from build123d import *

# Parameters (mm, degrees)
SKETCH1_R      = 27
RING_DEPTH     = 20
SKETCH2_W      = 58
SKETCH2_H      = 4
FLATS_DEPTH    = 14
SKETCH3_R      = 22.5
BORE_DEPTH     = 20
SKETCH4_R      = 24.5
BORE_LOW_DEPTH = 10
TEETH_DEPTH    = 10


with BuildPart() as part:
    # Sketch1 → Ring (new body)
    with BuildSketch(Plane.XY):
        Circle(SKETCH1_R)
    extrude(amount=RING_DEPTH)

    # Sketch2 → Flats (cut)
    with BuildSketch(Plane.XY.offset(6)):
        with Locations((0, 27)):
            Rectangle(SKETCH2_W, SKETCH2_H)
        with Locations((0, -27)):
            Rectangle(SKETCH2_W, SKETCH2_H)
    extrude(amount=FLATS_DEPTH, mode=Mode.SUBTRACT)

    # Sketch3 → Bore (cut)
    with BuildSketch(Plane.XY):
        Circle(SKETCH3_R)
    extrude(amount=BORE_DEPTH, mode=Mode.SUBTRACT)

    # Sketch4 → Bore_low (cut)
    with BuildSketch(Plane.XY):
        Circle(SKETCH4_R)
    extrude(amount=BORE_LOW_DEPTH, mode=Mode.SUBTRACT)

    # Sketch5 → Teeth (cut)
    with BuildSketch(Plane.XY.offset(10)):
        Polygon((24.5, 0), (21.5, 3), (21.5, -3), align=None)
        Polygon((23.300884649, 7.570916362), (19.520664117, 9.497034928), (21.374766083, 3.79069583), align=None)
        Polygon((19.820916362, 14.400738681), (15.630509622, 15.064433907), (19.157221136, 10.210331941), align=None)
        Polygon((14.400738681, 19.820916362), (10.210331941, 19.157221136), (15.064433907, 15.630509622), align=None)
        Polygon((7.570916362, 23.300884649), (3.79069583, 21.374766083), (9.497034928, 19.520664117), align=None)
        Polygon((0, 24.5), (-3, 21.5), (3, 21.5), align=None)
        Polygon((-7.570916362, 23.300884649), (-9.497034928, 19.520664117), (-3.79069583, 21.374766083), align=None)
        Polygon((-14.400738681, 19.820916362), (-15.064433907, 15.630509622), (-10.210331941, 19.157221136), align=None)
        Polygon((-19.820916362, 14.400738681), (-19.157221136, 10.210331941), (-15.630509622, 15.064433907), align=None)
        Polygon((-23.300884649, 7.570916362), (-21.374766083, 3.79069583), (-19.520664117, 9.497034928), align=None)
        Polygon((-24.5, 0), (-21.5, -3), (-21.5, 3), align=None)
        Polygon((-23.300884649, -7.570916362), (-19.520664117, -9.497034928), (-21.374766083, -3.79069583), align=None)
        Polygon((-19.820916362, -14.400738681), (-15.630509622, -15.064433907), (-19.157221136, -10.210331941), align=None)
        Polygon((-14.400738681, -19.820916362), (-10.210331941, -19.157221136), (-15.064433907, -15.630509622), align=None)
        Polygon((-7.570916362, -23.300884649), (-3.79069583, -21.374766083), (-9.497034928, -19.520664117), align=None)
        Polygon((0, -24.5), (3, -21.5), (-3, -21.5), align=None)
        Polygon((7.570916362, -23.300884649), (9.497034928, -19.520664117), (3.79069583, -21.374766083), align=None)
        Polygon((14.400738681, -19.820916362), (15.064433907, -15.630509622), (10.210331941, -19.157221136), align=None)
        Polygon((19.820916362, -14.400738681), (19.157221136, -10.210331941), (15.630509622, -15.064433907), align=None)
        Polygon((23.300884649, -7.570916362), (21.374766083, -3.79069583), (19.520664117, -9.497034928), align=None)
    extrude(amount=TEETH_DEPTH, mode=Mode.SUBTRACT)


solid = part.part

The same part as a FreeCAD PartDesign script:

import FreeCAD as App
import Part
import Sketcher
Q = App.Units.Quantity


def add_polygon(sketch, points):
    """Adds a closed chain of lines whose ends are joined by coincident constraints."""
    first, n = sketch.GeometryCount, len(points)
    for a, b in zip(points, points[1:] + points[:1]):
        sketch.addGeometry(Part.LineSegment(App.Vector(*a, 0), App.Vector(*b, 0)), False)
    for i in range(n):
        sketch.addConstraint(Sketcher.Constraint("Coincident", first + i, 2, first + (i + 1) % n, 1))

doc = App.newDocument("Part")
body = doc.addObject("PartDesign::Body", "Body")

# Sketch on XY plane
sketch1 = body.newObject("Sketcher::SketchObject", "Sketch")
sketch1.AttachmentSupport = (doc.getObject("XY_Plane"), [""])
sketch1.MapMode = "FlatFace"
sketch1.addGeometry(Part.Circle(App.Vector(0, 0, 0), App.Vector(0, 0, 1), 27), False)
sketch1.addConstraint([
    Sketcher.Constraint("Coincident", 0, 3, -1, 1),
    Sketcher.Constraint("Diameter", 0, 54.0),
])
pad1 = body.newObject("PartDesign::Pad", "Pad")
pad1.Profile = sketch1
pad1.Length = 20

# Sketch on XY plane
sketch2 = body.newObject("Sketcher::SketchObject", "Sketch001")
sketch2.AttachmentSupport = (doc.getObject("XY_Plane"), [""])
sketch2.MapMode = "FlatFace"
sketch2.AttachmentOffset = App.Placement(App.Vector(0, 0, 6), App.Rotation())
add_polygon(sketch2, [(-29, 29), (-29, 25), (29, 25), (29, 29)])  # lines 0-3
add_polygon(sketch2, [(-29, -25), (-29, -29), (29, -29), (29, -25)])  # lines 4-7
sketch2.addConstraint([
    Sketcher.Constraint("Vertical", 0),
    Sketcher.Constraint("Horizontal", 1),
    Sketcher.Constraint("Vertical", 2),
    Sketcher.Constraint("Horizontal", 3),
    Sketcher.Constraint("Vertical", 4),
    Sketcher.Constraint("Horizontal", 5),
    Sketcher.Constraint("Vertical", 6),
    Sketcher.Constraint("Horizontal", 7),
    Sketcher.Constraint("Symmetric", 2, 2, 4, 2, -1, 1),
    Sketcher.Constraint("Symmetric", 0, 2, 6, 2, -1, 1),
    Sketcher.Constraint("Vertical", 3, 2, 4, 2),
    Sketcher.Constraint("DistanceX", 1, 1, 1, 2, 58.0),
    Sketcher.Constraint("DistanceY", 0, 2, 0, 1, 4.0),
    Sketcher.Constraint("DistanceY", -1, 1, 0, 2, 25.0),
])
pocket1 = body.newObject("PartDesign::Pocket", "Pocket")
pocket1.Profile = sketch2
pocket1.Length = 14
pocket1.Reversed = True

# Sketch on XY plane
sketch3 = body.newObject("Sketcher::SketchObject", "Sketch002")
sketch3.AttachmentSupport = (doc.getObject("XY_Plane"), [""])
sketch3.MapMode = "FlatFace"
sketch3.addGeometry(Part.Circle(App.Vector(0, 0, 0), App.Vector(0, 0, 1), 22), False)
sketch3.addConstraint([
    Sketcher.Constraint("Coincident", 0, 3, -1, 1),
    Sketcher.Constraint("Diameter", 0, 45.0),
])
pocket2 = body.newObject("PartDesign::Pocket", "Pocket001")
pocket2.Profile = sketch3
pocket2.Length = 20
pocket2.Reversed = True

# Sketch on XY plane
sketch4 = body.newObject("Sketcher::SketchObject", "Sketch003")
sketch4.AttachmentSupport = (doc.getObject("XY_Plane"), [""])
sketch4.MapMode = "FlatFace"
sketch4.addGeometry(Part.Circle(App.Vector(0, 0, 0), App.Vector(0, 0, 1), 24), False)
sketch4.addConstraint([
    Sketcher.Constraint("Coincident", 0, 3, -1, 1),
    Sketcher.Constraint("Diameter", 0, 49.0),
])
pocket3 = body.newObject("PartDesign::Pocket", "Pocket002")
pocket3.Profile = sketch4
pocket3.Length = 10
pocket3.Reversed = True

# Sketch on XY plane
sketch5 = body.newObject("Sketcher::SketchObject", "Sketch004")
sketch5.AttachmentSupport = (doc.getObject("XY_Plane"), [""])
sketch5.MapMode = "FlatFace"
sketch5.AttachmentOffset = App.Placement(App.Vector(0, 0, 10), App.Rotation())
add_polygon(sketch5, [(24.5, 0), (21.5, 3), (21.5, -3)])  # lines 0-2
add_polygon(sketch5, [(23.3, 7.6), (19.5, 9.5), (21.4, 3.8)])  # lines 3-5
add_polygon(sketch5, [(19.8, 14.4), (15.6, 15.1), (19.2, 10.2)])  # lines 6-8
add_polygon(sketch5, [(14.4, 19.8), (10.2, 19.2), (15.1, 15.6)])  # lines 9-11
add_polygon(sketch5, [(7.6, 23.3), (3.8, 21.4), (9.5, 19.5)])  # lines 12-14
add_polygon(sketch5, [(0, 24.5), (-3, 21.5), (3, 21.5)])  # lines 15-17
add_polygon(sketch5, [(-7.6, 23.3), (-9.5, 19.5), (-3.8, 21.4)])  # lines 18-20
add_polygon(sketch5, [(-14.4, 19.8), (-15.1, 15.6), (-10.2, 19.2)])  # lines 21-23
add_polygon(sketch5, [(-19.8, 14.4), (-19.2, 10.2), (-15.6, 15.1)])  # lines 24-26
add_polygon(sketch5, [(-23.3, 7.6), (-21.4, 3.8), (-19.5, 9.5)])  # lines 27-29
add_polygon(sketch5, [(-24.5, 0), (-21.5, -3), (-21.5, 3)])  # lines 30-32
add_polygon(sketch5, [(-23.3, -7.6), (-19.5, -9.5), (-21.4, -3.8)])  # lines 33-35
add_polygon(sketch5, [(-19.8, -14.4), (-15.6, -15.1), (-19.2, -10.2)])  # lines 36-38
add_polygon(sketch5, [(-14.4, -19.8), (-10.2, -19.2), (-15.1, -15.6)])  # lines 39-41
add_polygon(sketch5, [(-7.6, -23.3), (-3.8, -21.4), (-9.5, -19.5)])  # lines 42-44
add_polygon(sketch5, [(0, -24.5), (3, -21.5), (-3, -21.5)])  # lines 45-47
add_polygon(sketch5, [(7.6, -23.3), (9.5, -19.5), (3.8, -21.4)])  # lines 48-50
add_polygon(sketch5, [(14.4, -19.8), (15.1, -15.6), (10.2, -19.2)])  # lines 51-53
add_polygon(sketch5, [(19.8, -14.4), (19.2, -10.2), (15.6, -15.1)])  # lines 54-56
add_polygon(sketch5, [(23.3, -7.6), (21.4, -3.8), (19.5, -9.5)])  # lines 57-59
sketch5.addConstraint([
    Sketcher.Constraint("Vertical", 1),
    Sketcher.Constraint("Horizontal", 16),
    Sketcher.Constraint("Vertical", 31),
    Sketcher.Constraint("Horizontal", 46),
    Sketcher.Constraint("Symmetric", 0, 2, 30, 2, -1, 1),
    Sketcher.Constraint("Symmetric", 2, 2, 32, 2, -1, 1),
    Sketcher.Constraint("Symmetric", 3, 2, 33, 2, -1, 1),
    Sketcher.Constraint("Symmetric", 4, 2, 34, 2, -1, 1),
    Sketcher.Constraint("Symmetric", 5, 2, 35, 2, -1, 1),
    Sketcher.Constraint("Symmetric", 6, 2, 36, 2, -1, 1),
    Sketcher.Constraint("Symmetric", 7, 2, 37, 2, -1, 1),
    Sketcher.Constraint("Symmetric", 8, 2, 38, 2, -1, 1),
    Sketcher.Constraint("Symmetric", 9, 2, 39, 2, -1, 1),
    Sketcher.Constraint("Symmetric", 10, 2, 40, 2, -1, 1),
    Sketcher.Constraint("Symmetric", 11, 2, 41, 2, -1, 1),
    Sketcher.Constraint("Symmetric", 12, 2, 42, 2, -1, 1),
    Sketcher.Constraint("Symmetric", 13, 2, 43, 2, -1, 1),
    Sketcher.Constraint("Symmetric", 14, 2, 44, 2, -1, 1),
    Sketcher.Constraint("Symmetric", 15, 2, 45, 2, -1, 1),
    Sketcher.Constraint("Symmetric", 17, 2, 47, 2, -1, 1),
    Sketcher.Constraint("Symmetric", 18, 2, 48, 2, -1, 1),
    Sketcher.Constraint("Symmetric", 19, 2, 49, 2, -1, 1),
    Sketcher.Constraint("Symmetric", 20, 2, 50, 2, -1, 1),
    Sketcher.Constraint("Symmetric", 21, 2, 51, 2, -1, 1),
    Sketcher.Constraint("Symmetric", 22, 2, 52, 2, -1, 1),
    Sketcher.Constraint("Symmetric", 23, 2, 53, 2, -1, 1),
    Sketcher.Constraint("Symmetric", 24, 2, 54, 2, -1, 1),
    Sketcher.Constraint("Symmetric", 25, 2, 55, 2, -1, 1),
    Sketcher.Constraint("Symmetric", 26, 2, 56, 2, -1, 1),
    Sketcher.Constraint("Symmetric", 27, 2, 57, 2, -1, 1),
    Sketcher.Constraint("Symmetric", 28, 2, 58, 2, -1, 1),
    Sketcher.Constraint("Symmetric", 29, 2, 59, 2, -1, 1),
    Sketcher.Constraint("Symmetric", 13, 2, 18, 2, -2),
    Sketcher.Constraint("Symmetric", 12, 2, 19, 2, -2),
    Sketcher.Constraint("Symmetric", 14, 2, 20, 2, -2),
    Sketcher.Constraint("Symmetric", 10, 2, 21, 2, -2),
    Sketcher.Constraint("Symmetric", 9, 2, 22, 2, -2),
    Sketcher.Constraint("Symmetric", 11, 2, 23, 2, -2),
    Sketcher.Constraint("Symmetric", 7, 2, 24, 2, -2),
    Sketcher.Constraint("Symmetric", 6, 2, 25, 2, -2),
    Sketcher.Constraint("Symmetric", 8, 2, 26, 2, -2),
    Sketcher.Constraint("Symmetric", 4, 2, 27, 2, -2),
    Sketcher.Constraint("Symmetric", 3, 2, 28, 2, -2),
    Sketcher.Constraint("Symmetric", 5, 2, 29, 2, -2),
    Sketcher.Constraint("PointOnObject", 2, 2, -1),
    Sketcher.Constraint("PointOnObject", 17, 2, -2),
    Sketcher.Constraint("Perpendicular", 0, 2),
    Sketcher.Constraint("Perpendicular", 3, 5),
    Sketcher.Constraint("Perpendicular", 6, 8),
    Sketcher.Constraint("Perpendicular", 9, 11),
    Sketcher.Constraint("Perpendicular", 12, 14),
    Sketcher.Constraint("Parallel", 2, 15),
    Sketcher.Constraint("Perpendicular", 15, 17),
    Sketcher.Constraint("Parallel", 5, 18),
    Sketcher.Constraint("Perpendicular", 4, 19),
    Sketcher.Constraint("Parallel", 8, 21),
    Sketcher.Constraint("Perpendicular", 7, 22),
    Sketcher.Constraint("Perpendicular", 30, 32),
    Sketcher.Constraint("Perpendicular", 45, 47),
    Sketcher.Constraint("Horizontal", 1, 2, 30, 2),
    Sketcher.Constraint("Equal", 46, 1),
    Sketcher.Constraint("Equal", 2, 3),
    Sketcher.Constraint("Equal", 3, 5),
    Sketcher.Constraint("Equal", 5, 6),
    Sketcher.Constraint("Equal", 4, 7),
    Sketcher.Constraint("Equal", 8, 9),
    Sketcher.Constraint("Equal", 11, 12),
    Sketcher.Constraint("DistanceX", 16, 1, 16, 2, 6.0),
    Sketcher.Constraint("Angle", 3, Q("153 deg")),
    Sketcher.Constraint("Angle", 6, Q("171 deg")),
    Sketcher.Constraint("DistanceX", -1, 1, 0, 2, 21.5),
    Sketcher.Constraint("DistanceY", -1, 1, 15, 2, 21.5),
    Sketcher.Constraint("DistanceY", 3, 2, 6, 2, 5.567399),
    Sketcher.Constraint("DistanceX", 13, 2, 10, 2, 5.567399),
    Sketcher.Constraint("DistanceX", -1, 1, 6, 2, 15.63051),
    Sketcher.Constraint("DistanceY", -1, 1, 7, 2, 10.210332),
    Sketcher.Constraint("DistanceX", -1, 1, 9, 2, 10.210332),
    Sketcher.Constraint("DistanceY", -1, 1, 9, 2, 19.157221),
    Sketcher.Constraint("DistanceX", 8, 2, 5, 2, 3.479968),
    Sketcher.Constraint("DistanceY", 11, 2, 12, 2, 1.55385),
])
pocket4 = body.newObject("PartDesign::Pocket", "Pocket003")
pocket4.Profile = sketch5
pocket4.Length = 10
pocket4.Reversed = True

doc.recompute()
